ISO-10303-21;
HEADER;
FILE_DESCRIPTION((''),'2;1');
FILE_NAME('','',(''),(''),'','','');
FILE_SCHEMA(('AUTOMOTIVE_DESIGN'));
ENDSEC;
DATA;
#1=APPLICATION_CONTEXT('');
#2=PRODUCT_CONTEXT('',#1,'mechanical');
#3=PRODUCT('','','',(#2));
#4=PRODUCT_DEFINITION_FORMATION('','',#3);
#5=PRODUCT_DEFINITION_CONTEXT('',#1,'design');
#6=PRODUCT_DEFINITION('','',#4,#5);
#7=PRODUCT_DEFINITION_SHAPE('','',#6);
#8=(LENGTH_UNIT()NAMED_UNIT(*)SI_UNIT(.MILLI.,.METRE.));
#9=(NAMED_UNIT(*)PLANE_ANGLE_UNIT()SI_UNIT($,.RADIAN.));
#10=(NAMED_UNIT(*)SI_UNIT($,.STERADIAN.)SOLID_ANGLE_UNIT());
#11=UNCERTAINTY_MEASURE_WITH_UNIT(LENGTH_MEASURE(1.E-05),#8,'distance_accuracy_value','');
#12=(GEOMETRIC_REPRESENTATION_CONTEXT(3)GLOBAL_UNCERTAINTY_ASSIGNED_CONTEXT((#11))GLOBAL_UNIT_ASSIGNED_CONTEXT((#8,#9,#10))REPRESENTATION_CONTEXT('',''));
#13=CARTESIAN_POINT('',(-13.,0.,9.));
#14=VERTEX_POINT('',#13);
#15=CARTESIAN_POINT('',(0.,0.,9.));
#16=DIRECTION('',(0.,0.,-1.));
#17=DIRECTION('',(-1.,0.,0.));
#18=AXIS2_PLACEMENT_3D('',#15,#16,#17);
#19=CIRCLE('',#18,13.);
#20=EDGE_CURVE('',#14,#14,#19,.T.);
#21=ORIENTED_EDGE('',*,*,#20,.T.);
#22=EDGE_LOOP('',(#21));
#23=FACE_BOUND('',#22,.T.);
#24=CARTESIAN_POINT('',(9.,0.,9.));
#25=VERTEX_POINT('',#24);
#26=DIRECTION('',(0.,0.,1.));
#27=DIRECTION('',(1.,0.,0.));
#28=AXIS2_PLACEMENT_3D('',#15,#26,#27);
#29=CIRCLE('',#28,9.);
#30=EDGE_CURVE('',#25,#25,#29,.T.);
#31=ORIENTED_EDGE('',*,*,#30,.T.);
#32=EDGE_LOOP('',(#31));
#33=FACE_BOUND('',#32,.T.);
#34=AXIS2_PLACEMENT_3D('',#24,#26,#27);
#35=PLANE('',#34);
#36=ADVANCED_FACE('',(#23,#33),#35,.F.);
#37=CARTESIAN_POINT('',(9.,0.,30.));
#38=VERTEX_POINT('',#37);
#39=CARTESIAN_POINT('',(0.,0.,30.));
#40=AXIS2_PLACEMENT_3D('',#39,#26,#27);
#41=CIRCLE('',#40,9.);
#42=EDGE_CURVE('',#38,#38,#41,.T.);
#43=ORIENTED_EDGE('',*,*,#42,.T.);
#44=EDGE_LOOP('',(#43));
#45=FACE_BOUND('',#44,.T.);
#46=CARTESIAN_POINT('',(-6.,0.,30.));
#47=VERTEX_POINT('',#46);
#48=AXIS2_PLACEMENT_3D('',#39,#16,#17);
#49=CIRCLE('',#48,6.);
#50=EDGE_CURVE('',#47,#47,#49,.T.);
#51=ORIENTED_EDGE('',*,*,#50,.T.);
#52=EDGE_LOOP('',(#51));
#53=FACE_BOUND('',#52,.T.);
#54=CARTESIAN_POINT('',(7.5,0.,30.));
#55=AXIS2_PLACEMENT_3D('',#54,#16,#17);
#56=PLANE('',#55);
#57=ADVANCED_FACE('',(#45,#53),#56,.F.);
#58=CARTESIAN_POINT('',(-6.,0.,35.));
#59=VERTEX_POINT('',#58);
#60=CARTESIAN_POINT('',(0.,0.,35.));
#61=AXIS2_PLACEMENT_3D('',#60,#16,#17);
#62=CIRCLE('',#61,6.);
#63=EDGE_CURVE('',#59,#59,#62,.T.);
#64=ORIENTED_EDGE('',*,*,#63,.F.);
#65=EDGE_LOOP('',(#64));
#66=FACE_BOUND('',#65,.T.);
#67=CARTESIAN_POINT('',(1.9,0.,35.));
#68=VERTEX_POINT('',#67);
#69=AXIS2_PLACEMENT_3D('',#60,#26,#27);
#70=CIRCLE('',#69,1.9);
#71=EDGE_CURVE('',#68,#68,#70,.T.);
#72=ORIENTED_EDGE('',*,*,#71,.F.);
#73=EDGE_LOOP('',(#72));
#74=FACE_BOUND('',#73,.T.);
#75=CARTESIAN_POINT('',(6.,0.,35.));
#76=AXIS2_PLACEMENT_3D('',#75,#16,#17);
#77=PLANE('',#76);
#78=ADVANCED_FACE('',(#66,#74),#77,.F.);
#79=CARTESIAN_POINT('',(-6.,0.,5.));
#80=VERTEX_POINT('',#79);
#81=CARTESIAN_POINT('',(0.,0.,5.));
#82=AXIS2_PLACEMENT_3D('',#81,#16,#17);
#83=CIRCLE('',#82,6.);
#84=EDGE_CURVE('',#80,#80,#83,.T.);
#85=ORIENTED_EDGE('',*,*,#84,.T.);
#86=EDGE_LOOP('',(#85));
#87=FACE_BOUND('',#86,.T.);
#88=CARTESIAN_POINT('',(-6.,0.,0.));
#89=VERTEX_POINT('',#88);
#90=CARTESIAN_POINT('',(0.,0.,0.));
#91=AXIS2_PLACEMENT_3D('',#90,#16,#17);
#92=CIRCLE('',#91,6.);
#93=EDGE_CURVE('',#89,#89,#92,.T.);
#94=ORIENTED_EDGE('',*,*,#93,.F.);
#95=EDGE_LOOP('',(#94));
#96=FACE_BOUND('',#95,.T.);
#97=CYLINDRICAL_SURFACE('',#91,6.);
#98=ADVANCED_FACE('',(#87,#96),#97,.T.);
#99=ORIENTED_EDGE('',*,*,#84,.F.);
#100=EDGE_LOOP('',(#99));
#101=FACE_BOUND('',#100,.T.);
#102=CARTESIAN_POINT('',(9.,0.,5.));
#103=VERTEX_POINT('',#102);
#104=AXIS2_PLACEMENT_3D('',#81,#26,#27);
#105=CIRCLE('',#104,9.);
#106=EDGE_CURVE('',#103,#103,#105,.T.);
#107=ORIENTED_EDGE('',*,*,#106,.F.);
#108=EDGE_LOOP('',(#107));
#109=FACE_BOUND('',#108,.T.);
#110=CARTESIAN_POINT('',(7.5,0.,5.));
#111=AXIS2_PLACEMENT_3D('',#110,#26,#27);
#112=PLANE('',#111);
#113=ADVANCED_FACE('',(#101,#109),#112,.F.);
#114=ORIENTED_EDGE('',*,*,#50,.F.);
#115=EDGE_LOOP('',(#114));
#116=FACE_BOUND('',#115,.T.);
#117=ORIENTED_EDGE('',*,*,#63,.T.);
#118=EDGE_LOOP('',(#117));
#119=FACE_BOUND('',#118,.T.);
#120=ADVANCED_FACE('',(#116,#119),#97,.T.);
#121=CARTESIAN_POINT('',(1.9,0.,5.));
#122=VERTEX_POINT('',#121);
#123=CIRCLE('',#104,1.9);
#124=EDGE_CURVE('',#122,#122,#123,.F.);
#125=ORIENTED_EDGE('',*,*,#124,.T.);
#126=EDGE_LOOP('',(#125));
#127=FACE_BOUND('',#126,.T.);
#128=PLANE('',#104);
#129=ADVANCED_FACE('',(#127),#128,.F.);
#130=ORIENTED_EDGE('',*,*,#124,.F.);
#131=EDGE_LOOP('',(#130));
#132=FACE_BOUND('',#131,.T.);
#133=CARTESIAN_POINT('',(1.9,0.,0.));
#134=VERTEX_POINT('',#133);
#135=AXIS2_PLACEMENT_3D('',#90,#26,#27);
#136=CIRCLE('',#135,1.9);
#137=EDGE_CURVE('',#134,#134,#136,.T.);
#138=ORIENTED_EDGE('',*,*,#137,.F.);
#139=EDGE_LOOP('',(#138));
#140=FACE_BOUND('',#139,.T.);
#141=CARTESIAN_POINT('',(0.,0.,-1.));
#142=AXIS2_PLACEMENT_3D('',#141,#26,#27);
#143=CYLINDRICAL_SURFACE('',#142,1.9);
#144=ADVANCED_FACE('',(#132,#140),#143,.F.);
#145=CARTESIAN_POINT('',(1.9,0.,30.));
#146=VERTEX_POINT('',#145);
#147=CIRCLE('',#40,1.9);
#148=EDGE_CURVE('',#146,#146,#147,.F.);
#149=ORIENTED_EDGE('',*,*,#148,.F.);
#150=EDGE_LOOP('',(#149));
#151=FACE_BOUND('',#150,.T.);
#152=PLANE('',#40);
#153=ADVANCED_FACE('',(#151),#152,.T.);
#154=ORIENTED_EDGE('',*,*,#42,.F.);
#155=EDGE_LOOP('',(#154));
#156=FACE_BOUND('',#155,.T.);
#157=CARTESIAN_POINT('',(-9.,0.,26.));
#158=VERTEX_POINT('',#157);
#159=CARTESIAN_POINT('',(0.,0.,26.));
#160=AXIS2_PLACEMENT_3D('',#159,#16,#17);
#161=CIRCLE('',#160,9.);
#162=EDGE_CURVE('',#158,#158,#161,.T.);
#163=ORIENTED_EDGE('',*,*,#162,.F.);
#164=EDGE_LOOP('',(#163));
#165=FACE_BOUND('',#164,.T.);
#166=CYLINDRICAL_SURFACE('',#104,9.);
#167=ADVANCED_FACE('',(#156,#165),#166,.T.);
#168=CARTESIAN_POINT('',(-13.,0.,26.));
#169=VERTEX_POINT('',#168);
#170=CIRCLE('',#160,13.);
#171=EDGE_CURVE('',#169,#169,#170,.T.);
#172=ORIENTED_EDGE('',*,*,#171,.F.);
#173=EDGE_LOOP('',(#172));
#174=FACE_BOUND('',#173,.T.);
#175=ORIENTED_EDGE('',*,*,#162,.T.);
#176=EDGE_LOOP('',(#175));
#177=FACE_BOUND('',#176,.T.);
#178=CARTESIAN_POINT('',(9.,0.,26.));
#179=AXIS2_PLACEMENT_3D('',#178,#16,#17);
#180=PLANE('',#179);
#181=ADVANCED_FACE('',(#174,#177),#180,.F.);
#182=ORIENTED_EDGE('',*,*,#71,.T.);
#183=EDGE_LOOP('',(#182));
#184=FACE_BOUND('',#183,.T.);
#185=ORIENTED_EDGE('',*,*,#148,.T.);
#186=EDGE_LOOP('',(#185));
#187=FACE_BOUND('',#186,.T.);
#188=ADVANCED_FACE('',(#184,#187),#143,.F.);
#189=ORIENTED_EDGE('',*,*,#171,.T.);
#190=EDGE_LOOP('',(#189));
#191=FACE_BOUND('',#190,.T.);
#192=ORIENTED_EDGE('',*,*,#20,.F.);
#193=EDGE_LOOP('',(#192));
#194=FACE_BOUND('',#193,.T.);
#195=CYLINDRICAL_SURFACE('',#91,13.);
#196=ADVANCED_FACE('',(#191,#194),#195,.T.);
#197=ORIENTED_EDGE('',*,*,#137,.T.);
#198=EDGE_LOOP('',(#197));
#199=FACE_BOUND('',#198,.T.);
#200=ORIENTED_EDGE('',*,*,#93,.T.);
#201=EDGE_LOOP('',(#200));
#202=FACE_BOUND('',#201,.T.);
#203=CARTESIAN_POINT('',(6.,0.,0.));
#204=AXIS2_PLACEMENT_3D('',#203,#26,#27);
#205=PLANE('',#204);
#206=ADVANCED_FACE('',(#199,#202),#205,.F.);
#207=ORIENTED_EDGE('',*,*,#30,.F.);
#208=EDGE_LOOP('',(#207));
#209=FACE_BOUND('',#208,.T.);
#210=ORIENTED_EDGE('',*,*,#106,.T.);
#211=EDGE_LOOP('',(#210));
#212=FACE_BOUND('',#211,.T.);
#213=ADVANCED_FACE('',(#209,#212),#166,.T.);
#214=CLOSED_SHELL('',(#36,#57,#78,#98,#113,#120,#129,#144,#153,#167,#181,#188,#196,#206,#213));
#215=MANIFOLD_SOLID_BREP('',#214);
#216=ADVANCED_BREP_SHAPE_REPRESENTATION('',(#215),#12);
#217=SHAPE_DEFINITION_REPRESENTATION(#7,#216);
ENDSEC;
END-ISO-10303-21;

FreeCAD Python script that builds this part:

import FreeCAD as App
import Part
import Sketcher
from FreeCAD import Vector
Q = App.Units.Quantity


def add_polygon(sketch, points):
    """Adds a closed chain of lines whose ends are joined by coincident constraints."""
    first, n = sketch.GeometryCount, len(points)
    for a, b in zip(points, points[1:] + points[:1]):
        sketch.addGeometry(Part.LineSegment(App.Vector(*a, 0), App.Vector(*b, 0)), False)
    for i in range(n):
        sketch.addConstraint(Sketcher.Constraint("Coincident", first + i, 2, first + (i + 1) % n, 1))

doc = App.newDocument("Part")
body = doc.addObject("PartDesign::Body", "Body")

# Sketch on XZ plane
sketch1 = doc.addObject("Sketcher::SketchObject", "Sketch")
body.addObject(sketch1)
sketch1.AttachmentSupport = (doc.XZ_Plane, [""])
sketch1.MapMode = "FlatFace"
add_polygon(sketch1, [(0, 0), (0, 35), (6, 35), (6, 30), (7.5, 30), (7.5, 26), (13, 26), (13, 9), (7.5, 9), (7.5, 5), (6, 5), (6, 0)])  # lines 0-11
sketch1.addConstraint(Sketcher.Constraint("Vertical", 0))
sketch1.addConstraint(Sketcher.Constraint("Horizontal", 1))
sketch1.addConstraint(Sketcher.Constraint("Vertical", 2))
sketch1.addConstraint(Sketcher.Constraint("Horizontal", 3))
sketch1.addConstraint(Sketcher.Constraint("Vertical", 4))
sketch1.addConstraint(Sketcher.Constraint("Horizontal", 5))
sketch1.addConstraint(Sketcher.Constraint("Vertical", 6))
sketch1.addConstraint(Sketcher.Constraint("Horizontal", 7))
sketch1.addConstraint(Sketcher.Constraint("Vertical", 8))
sketch1.addConstraint(Sketcher.Constraint("Horizontal", 9))
sketch1.addConstraint(Sketcher.Constraint("Vertical", 10))
sketch1.addConstraint(Sketcher.Constraint("Horizontal", 11))
sketch1.addConstraint(Sketcher.Constraint("Coincident", 11, 2, -1, 1))
sketch1.addConstraint(Sketcher.Constraint("Vertical", 4, 2, 7, 2))
sketch1.addConstraint(Sketcher.Constraint("Vertical", 2, 2, 9, 2))
sketch1.addConstraint(Sketcher.Constraint("Equal", 4, 8))
sketch1.addConstraint(Sketcher.Constraint("Equal", 2, 10))
sketch1.addConstraint(Sketcher.Constraint("DistanceX", 1, 1, 1, 2, Q("6 mm")))
sketch1.addConstraint(Sketcher.Constraint("DistanceY", 0, 1, 0, 2, Q("35 mm")))
sketch1.addConstraint(Sketcher.Constraint("DistanceY", 2, 2, 2, 1, Q("5 mm")))
sketch1.addConstraint(Sketcher.Constraint("DistanceY", 4, 2, 4, 1, Q("4 mm")))
sketch1.addConstraint(Sketcher.Constraint("DistanceX", 3, 1, 3, 2, Q("1.5 mm")))
sketch1.addConstraint(Sketcher.Constraint("DistanceX", 5, 1, 5, 2, Q("5.5 mm")))
revolution = doc.addObject("PartDesign::Revolution", "Revolution")
body.addObject(revolution)
revolution.Profile = sketch1
revolution.ReferenceAxis = (sketch1, ["V_Axis"])
revolution.Angle = 360

# Sketch on XY plane
sketch2 = doc.addObject("Sketcher::SketchObject", "Sketch001")
body.addObject(sketch2)
sketch2.AttachmentSupport = (doc.XY_Plane, [""])
sketch2.MapMode = "FlatFace"
sketch2.AttachmentOffset = App.Placement(Vector(0, 0, 35), App.Rotation())
sketch2.addGeometry(Part.Circle(Vector(0, 0, 0), Vector(0, 0, 1), 1.9), False)
sketch2.addConstraint(Sketcher.Constraint("Coincident", 0, 3, -1, 1))
sketch2.addConstraint(Sketcher.Constraint("Diameter", 0, Q("3.8 mm")))
pocket1 = doc.addObject("PartDesign::Pocket", "Pocket")
body.addObject(pocket1)
pocket1.Profile = sketch2
pocket1.Length = 36

# Sketch on XY plane
sketch3 = doc.addObject("Sketcher::SketchObject", "Sketch002")
body.addObject(sketch3)
sketch3.AttachmentSupport = (doc.XY_Plane, [""])
sketch3.MapMode = "FlatFace"
sketch3.AttachmentOffset = App.Placement(Vector(0, 0, 26), App.Rotation())
sketch3.addGeometry(Part.Circle(Vector(0, 0, 0), Vector(0, 0, 1), 9), False)
sketch3.addConstraint(Sketcher.Constraint("Coincident", 0, 3, -1, 1))
sketch3.addConstraint(Sketcher.Constraint("Diameter", 0, Q("18 mm")))
pad1 = doc.addObject("PartDesign::Pad", "Pad")
body.addObject(pad1)
pad1.Profile = sketch3
pad1.Type = "TwoLengths"
pad1.Length = 4
pad1.Length2 = 21

doc.recompute()
